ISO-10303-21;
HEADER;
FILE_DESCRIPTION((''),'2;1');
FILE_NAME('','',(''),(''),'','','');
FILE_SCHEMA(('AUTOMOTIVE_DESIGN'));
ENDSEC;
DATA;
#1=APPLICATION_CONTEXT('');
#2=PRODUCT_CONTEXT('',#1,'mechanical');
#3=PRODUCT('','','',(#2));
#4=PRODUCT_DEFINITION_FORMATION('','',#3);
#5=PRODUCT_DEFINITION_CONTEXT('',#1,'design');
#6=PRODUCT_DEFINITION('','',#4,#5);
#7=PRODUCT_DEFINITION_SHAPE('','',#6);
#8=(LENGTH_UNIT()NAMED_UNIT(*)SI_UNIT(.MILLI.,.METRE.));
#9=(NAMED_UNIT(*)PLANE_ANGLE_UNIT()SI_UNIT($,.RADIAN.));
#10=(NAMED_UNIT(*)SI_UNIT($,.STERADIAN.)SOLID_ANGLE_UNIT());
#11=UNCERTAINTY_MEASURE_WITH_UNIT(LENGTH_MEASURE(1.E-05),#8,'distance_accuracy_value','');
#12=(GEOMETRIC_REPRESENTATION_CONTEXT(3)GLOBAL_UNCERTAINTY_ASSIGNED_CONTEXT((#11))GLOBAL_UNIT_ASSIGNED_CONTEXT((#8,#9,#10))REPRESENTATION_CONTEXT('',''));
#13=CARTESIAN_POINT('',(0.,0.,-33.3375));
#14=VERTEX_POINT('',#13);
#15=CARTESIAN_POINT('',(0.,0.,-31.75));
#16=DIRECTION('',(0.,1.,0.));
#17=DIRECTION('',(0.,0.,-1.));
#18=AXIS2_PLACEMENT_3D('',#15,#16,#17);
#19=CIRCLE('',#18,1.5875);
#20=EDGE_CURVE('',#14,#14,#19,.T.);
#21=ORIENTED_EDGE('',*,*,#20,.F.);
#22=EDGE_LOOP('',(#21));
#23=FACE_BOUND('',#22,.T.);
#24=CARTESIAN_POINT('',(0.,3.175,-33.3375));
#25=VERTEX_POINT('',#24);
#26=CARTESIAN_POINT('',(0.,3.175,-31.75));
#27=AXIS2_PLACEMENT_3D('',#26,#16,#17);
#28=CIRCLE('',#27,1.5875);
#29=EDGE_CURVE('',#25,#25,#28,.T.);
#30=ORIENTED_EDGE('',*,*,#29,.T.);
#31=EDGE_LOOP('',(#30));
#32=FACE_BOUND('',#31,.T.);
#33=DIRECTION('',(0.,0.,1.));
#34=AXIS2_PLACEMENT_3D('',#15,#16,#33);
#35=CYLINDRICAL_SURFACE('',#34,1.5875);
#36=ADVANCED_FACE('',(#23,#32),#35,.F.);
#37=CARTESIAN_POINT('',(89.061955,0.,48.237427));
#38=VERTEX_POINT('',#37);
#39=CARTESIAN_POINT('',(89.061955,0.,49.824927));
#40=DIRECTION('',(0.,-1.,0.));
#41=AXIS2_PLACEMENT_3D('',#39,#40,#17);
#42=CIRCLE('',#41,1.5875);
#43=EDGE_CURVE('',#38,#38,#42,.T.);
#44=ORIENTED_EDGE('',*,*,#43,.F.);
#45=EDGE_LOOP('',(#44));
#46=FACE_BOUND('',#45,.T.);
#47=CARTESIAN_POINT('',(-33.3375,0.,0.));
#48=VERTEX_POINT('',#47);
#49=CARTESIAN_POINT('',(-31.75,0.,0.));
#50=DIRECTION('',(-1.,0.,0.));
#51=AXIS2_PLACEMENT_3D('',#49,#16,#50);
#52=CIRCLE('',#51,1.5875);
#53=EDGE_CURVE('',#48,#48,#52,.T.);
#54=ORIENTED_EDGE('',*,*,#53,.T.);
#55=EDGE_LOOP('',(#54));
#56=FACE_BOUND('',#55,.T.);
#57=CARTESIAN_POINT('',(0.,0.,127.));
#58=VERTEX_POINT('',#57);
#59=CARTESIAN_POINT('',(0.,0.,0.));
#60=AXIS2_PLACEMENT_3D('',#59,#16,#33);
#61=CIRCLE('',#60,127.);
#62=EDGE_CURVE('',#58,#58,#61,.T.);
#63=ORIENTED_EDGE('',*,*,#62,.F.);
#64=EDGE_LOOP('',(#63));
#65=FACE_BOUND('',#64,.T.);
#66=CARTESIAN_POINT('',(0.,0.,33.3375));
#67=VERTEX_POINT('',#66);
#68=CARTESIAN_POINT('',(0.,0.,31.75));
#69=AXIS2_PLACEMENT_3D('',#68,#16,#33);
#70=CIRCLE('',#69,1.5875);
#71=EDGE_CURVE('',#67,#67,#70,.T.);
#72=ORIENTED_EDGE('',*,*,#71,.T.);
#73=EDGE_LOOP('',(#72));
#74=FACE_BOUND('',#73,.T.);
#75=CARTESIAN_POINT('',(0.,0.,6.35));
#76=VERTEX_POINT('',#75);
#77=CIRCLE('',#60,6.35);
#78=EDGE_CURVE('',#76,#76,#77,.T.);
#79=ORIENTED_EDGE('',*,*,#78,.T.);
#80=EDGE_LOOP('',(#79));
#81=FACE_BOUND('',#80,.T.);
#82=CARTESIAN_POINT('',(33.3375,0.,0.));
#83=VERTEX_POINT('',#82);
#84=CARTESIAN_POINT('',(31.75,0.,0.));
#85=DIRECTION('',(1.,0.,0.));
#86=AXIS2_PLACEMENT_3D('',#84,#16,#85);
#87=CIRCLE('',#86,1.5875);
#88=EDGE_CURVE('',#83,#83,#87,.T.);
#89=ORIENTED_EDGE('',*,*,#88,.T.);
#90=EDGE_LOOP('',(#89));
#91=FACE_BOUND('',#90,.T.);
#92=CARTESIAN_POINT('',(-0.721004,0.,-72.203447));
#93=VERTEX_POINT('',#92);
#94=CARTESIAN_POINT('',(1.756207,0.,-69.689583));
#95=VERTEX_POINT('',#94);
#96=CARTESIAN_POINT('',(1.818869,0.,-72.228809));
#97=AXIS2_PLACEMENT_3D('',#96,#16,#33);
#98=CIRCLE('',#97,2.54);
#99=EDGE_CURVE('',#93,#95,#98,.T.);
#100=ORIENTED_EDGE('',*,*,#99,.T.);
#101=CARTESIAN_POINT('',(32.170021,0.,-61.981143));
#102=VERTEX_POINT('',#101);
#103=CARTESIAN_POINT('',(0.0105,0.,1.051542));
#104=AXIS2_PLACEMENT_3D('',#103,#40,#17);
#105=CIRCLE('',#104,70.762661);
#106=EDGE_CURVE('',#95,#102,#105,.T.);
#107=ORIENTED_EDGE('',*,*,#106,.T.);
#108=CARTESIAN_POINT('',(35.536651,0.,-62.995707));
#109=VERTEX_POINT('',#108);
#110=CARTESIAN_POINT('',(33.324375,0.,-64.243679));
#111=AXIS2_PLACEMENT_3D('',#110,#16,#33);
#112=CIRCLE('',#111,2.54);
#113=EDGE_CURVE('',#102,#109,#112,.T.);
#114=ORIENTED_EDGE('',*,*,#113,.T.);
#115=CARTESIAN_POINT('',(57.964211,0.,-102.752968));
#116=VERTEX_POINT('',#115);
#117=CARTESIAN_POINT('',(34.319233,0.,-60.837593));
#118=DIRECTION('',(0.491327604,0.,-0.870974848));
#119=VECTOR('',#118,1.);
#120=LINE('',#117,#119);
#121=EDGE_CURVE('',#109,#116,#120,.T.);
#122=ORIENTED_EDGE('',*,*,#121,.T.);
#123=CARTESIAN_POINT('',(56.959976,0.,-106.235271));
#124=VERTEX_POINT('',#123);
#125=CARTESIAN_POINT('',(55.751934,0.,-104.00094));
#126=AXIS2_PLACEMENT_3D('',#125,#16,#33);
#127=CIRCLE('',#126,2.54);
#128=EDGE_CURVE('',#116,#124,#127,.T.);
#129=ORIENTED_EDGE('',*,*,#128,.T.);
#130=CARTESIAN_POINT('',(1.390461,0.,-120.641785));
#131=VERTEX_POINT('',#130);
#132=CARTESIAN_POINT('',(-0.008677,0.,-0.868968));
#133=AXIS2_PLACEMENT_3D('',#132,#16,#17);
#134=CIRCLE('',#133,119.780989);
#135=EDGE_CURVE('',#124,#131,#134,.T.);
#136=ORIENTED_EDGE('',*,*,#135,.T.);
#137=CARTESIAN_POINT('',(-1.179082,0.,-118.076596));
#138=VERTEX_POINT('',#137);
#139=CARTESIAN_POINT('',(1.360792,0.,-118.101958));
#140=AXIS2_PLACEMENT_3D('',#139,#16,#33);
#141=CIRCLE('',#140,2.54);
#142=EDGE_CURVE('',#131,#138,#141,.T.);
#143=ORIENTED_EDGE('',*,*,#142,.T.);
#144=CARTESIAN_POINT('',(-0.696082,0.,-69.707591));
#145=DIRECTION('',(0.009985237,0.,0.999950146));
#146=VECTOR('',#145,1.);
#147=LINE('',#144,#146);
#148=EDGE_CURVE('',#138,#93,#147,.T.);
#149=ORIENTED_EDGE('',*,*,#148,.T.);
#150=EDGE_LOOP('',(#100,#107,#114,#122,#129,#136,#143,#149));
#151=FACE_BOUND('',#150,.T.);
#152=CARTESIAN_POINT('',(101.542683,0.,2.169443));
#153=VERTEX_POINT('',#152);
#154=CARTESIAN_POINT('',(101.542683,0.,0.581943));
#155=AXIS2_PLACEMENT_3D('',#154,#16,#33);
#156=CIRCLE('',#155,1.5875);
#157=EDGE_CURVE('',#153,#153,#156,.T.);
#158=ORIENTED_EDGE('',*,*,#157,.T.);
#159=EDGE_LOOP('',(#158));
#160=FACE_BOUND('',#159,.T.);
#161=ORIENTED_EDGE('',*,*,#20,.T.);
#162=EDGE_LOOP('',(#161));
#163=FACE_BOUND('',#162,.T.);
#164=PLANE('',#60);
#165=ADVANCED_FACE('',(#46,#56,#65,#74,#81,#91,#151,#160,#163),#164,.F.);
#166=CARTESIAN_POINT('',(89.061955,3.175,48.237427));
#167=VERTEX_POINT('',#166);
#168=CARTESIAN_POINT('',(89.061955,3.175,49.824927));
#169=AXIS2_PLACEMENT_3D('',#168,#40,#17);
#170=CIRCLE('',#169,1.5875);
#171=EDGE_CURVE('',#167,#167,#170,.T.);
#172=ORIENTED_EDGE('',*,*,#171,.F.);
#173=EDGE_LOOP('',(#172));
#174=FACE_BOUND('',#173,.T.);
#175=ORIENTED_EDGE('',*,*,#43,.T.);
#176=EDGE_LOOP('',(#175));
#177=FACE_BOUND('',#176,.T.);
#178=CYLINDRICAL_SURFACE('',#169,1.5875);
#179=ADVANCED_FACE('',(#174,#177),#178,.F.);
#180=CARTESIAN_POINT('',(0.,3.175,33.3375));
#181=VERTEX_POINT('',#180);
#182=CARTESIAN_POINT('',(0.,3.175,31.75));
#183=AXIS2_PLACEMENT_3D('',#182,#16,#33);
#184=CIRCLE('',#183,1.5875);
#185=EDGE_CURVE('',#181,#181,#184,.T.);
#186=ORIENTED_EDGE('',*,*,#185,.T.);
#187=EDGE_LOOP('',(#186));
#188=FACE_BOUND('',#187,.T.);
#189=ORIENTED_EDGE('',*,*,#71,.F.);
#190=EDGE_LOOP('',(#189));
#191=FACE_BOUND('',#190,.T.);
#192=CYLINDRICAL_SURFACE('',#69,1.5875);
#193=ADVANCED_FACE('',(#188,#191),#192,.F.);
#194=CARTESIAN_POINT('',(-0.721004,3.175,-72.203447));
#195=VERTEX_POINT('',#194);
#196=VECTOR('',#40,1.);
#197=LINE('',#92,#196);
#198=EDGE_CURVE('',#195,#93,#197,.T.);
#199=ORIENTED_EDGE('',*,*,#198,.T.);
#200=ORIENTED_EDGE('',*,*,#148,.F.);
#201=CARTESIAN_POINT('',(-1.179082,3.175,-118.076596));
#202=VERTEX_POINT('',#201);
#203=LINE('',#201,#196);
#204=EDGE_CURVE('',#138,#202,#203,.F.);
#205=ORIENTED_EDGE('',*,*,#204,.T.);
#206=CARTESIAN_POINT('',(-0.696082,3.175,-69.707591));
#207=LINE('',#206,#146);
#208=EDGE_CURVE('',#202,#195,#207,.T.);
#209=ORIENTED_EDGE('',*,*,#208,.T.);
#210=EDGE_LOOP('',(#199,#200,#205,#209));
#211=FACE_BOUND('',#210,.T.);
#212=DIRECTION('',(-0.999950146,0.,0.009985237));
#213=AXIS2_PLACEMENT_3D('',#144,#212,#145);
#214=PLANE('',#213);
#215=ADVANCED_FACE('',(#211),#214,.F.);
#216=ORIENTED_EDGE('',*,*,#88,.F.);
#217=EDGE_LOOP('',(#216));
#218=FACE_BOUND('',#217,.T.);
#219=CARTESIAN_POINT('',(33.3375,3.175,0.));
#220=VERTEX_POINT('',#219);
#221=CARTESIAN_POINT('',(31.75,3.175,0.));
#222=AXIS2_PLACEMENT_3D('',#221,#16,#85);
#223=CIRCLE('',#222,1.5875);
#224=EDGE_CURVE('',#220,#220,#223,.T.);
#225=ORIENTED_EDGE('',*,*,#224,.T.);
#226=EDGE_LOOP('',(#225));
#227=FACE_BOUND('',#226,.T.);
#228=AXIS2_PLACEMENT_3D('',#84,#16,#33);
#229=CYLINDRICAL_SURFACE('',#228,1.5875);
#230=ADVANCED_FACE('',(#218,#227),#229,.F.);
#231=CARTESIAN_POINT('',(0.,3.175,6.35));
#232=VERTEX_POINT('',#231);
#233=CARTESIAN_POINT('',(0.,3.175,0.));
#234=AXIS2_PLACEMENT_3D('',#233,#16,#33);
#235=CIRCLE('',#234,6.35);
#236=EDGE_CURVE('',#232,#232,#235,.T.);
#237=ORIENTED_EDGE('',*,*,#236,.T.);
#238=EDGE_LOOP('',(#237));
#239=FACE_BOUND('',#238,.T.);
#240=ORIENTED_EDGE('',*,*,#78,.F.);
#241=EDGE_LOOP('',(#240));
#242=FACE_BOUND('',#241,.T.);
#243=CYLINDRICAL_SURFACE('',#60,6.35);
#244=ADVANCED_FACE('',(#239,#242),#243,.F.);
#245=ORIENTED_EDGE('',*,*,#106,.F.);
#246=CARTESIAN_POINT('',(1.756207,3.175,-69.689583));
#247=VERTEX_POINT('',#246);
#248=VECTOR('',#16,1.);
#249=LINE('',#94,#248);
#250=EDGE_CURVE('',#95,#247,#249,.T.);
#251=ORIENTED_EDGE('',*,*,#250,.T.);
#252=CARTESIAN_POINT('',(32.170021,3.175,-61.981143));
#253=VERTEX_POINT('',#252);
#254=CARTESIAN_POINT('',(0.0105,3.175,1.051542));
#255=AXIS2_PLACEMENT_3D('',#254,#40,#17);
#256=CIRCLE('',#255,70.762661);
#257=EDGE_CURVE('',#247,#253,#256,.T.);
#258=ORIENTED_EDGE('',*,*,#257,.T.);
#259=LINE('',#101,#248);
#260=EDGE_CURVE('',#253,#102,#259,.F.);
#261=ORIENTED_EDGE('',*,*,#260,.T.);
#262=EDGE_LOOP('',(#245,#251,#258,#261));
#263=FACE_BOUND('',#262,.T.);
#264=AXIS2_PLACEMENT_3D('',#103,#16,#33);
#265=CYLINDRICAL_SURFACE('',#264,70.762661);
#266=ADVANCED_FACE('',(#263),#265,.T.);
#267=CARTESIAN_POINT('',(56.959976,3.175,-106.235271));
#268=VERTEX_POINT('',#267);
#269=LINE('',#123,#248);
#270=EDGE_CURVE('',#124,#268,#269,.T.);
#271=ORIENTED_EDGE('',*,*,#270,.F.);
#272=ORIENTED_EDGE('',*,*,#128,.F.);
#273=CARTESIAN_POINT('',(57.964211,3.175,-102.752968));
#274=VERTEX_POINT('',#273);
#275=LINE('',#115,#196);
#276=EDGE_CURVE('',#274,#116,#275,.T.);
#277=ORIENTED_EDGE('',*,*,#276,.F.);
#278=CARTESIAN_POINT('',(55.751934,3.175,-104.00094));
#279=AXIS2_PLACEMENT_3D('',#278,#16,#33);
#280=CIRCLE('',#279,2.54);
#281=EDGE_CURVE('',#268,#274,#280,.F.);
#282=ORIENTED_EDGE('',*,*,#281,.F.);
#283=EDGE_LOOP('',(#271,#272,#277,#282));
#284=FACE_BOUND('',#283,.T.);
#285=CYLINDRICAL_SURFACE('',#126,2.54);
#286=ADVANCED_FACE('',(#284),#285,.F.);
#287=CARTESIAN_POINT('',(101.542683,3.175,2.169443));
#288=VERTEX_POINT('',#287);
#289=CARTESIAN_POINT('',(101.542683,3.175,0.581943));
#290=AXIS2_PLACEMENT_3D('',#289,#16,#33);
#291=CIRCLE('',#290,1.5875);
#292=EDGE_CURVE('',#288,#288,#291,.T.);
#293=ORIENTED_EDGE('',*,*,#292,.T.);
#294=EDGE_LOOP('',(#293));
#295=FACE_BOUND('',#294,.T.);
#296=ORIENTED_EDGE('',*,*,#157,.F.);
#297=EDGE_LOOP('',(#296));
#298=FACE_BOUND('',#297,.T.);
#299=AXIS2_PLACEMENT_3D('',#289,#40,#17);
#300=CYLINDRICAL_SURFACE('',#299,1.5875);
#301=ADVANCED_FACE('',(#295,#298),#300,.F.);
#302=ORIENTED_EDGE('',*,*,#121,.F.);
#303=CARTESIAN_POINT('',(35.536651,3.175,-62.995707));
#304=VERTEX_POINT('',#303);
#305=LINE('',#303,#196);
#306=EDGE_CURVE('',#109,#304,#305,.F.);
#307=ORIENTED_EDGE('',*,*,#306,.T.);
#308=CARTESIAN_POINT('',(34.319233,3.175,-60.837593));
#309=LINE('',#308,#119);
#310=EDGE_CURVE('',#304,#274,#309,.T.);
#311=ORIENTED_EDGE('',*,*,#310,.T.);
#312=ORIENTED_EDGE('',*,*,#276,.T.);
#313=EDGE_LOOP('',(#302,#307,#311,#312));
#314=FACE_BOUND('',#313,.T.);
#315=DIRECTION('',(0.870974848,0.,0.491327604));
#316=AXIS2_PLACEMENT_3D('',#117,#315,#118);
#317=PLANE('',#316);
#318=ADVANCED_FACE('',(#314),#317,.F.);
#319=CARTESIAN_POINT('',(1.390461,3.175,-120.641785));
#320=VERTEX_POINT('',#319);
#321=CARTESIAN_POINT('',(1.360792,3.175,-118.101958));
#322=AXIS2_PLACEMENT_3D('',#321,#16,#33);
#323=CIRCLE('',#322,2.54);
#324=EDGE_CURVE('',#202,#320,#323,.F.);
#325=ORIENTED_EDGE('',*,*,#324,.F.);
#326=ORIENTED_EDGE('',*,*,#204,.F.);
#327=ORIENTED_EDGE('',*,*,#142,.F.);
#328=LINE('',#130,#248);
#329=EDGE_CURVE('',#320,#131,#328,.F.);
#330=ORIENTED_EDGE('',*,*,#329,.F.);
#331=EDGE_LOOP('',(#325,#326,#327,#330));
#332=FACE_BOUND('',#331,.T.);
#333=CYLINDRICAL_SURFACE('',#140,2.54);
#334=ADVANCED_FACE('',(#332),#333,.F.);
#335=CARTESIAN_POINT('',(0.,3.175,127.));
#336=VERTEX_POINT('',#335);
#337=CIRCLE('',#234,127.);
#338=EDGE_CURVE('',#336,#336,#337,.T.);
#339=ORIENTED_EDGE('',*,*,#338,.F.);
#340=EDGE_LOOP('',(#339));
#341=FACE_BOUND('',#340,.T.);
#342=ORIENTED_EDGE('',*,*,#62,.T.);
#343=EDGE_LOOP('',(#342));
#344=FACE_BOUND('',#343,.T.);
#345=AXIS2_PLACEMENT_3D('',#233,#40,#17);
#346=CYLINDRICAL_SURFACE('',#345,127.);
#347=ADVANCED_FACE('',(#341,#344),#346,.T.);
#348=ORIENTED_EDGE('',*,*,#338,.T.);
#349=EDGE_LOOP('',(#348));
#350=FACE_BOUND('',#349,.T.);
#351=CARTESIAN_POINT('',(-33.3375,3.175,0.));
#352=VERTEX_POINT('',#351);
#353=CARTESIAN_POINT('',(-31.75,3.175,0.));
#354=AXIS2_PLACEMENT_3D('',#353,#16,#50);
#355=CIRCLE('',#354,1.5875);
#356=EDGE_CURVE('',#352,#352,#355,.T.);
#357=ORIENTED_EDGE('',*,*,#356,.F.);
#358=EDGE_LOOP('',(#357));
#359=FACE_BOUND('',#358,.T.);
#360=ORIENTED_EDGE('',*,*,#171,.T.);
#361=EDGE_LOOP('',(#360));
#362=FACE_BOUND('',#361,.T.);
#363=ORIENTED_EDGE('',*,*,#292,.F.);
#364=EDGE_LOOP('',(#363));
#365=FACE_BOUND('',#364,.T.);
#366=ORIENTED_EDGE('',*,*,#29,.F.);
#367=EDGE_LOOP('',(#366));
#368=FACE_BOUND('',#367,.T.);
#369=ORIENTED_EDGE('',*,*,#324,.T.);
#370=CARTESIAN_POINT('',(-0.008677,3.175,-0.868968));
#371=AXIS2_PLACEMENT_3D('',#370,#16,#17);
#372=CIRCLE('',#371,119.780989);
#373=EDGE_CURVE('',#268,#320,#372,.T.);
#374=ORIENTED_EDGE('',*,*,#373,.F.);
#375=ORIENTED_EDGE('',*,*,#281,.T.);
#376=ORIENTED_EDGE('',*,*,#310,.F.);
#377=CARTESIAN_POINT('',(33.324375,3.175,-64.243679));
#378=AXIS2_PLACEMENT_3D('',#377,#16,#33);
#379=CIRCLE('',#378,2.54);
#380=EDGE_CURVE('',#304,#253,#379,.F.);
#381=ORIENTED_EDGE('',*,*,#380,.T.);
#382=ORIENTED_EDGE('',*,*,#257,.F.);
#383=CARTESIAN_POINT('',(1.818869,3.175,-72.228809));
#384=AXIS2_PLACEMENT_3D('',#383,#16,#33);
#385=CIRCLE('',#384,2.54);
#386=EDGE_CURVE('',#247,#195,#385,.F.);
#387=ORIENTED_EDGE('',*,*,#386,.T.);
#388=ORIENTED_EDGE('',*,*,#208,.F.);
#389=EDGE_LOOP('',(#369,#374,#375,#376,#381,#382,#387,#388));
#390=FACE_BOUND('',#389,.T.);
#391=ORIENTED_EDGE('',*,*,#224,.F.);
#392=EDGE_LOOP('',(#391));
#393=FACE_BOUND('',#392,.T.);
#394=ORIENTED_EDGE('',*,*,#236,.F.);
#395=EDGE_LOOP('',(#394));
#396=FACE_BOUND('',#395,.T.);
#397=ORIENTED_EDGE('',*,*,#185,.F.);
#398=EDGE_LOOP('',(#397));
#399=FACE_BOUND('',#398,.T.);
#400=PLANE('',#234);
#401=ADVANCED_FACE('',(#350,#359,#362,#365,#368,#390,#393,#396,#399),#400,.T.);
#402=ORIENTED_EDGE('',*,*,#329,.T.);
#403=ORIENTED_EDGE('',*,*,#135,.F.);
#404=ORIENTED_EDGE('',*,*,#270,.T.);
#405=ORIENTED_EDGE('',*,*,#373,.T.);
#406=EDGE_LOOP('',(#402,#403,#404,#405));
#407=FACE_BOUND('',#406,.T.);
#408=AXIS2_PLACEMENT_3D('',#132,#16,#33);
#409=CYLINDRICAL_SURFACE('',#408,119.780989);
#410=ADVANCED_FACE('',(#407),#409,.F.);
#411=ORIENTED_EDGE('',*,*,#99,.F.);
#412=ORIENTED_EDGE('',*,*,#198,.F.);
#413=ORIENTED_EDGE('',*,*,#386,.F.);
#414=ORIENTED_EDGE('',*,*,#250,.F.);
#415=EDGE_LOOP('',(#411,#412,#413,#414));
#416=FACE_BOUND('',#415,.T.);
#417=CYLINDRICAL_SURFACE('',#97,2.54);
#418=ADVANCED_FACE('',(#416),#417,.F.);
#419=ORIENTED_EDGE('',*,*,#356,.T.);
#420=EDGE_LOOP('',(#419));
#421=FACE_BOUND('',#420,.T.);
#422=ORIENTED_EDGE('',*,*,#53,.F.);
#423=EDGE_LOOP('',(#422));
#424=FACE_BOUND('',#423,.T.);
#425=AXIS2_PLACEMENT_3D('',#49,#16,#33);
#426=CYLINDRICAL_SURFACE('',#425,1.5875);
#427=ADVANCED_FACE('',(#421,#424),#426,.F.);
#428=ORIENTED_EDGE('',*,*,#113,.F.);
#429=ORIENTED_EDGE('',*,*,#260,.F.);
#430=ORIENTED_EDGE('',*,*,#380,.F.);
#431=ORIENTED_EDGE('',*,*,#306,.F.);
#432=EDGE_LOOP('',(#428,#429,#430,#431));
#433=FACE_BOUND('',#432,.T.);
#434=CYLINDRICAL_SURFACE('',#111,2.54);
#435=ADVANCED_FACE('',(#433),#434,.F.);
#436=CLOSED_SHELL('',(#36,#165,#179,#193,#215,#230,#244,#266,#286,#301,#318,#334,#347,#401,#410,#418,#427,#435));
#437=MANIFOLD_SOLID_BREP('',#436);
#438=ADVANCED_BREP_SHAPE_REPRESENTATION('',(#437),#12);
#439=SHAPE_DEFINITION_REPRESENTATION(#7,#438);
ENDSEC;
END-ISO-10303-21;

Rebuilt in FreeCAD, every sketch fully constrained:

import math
import FreeCAD as App
import Part
import Sketcher

V = App.Vector
Q = App.Units.Quantity


def edges_at(feature, points):
    """Names of the edges that pass closest to the given points."""
    edges = feature.Shape.Edges
    near = lambda p: min(range(len(edges)), key=lambda i: edges[i].distToShape(Part.Vertex(*p))[0])
    return sorted({f"Edge{near(p) + 1}" for p in points})

doc = App.newDocument("Part")
params = doc.addObject("Spreadsheet::Sheet", "Params")
for row, (alias, value) in enumerate([
    ("sketch1_diameter", "10 in"),
    ("pad1_length", "0.125 in"),
    ("sketch2_diameter", "0.5 in"),
    ("sketch4_diameter", "0.125 in"),
    ("fillet_radius", "0.1 in"),
    ("sketch5_diameter", "0.125 in"),
], start=1):
    params.set(f"A{row}", alias)
    params.set(f"B{row}", "=" + value)
    params.setAlias(f"B{row}", alias)

body = doc.addObject("PartDesign::Body", "Body")

# Sketch on XZ plane
sketch1 = body.newObject("Sketcher::SketchObject", "Sketch")
sketch1.AttachmentSupport = (doc.getObject("XZ_Plane"), [""])
sketch1.MapMode = "FlatFace"
sketch1.addGeometry(Part.Circle(V(0, 0, 0), V(0, 0, 1), 127), False)
sketch1.addConstraint(Sketcher.Constraint("Coincident", 0, 3, -1, 1))
sketch1.addConstraint(Sketcher.Constraint("Diameter", 0, Q("10 in")))
sketch1.setExpression("Constraints[1]", "Params.sketch1_diameter")
pad1 = body.newObject("PartDesign::Pad", "Pad")
pad1.Profile = sketch1
pad1.setExpression("Length", "Params.pad1_length")
pad1.Reversed = True

# Sketch on XZ plane
sketch2 = body.newObject("Sketcher::SketchObject", "Sketch001")
sketch2.AttachmentSupport = (doc.getObject("XZ_Plane"), [""])
sketch2.MapMode = "FlatFace"
sketch2.AttachmentOffset = App.Placement(V(0, 0, -0.125 * 25.4), App.Rotation())
sketch2.addGeometry(Part.Circle(V(0, 0, 0), V(0, 0, 1), 6), False)
sketch2.addConstraint(Sketcher.Constraint("Coincident", 0, 3, -1, 1))
sketch2.addConstraint(Sketcher.Constraint("Diameter", 0, Q("0.5 in")))
sketch2.setExpression("Constraints[1]", "Params.sketch2_diameter")
pocket1 = body.newObject("PartDesign::Pocket", "Pocket")
pocket1.Profile = sketch2
pocket1.Type = "ThroughAll"
pocket1.Reversed = True

# Sketch on XZ plane
sketch3 = body.newObject("Sketcher::SketchObject", "Sketch002")
sketch3.AttachmentSupport = (doc.getObject("XZ_Plane"), [""])
sketch3.MapMode = "FlatFace"
sketch3.AttachmentOffset = App.Placement(V(0, 0, -0.125 * 25.4), App.Rotation())
sketch3.addGeometry(Part.LineSegment(V(-1, -121, 0), V(-1, -70, 0)), False)
sketch3.addGeometry(Part.ArcOfCircle(Part.Circle(V(0, 1, 0), V(0, 0, 1), 71), math.radians(-91), math.radians(-61)), False)
sketch3.addGeometry(Part.LineSegment(V(34, -61, 0), V(59, -105, 0)), False)
sketch3.addGeometry(Part.ArcOfCircle(Part.Circle(V(0, -1, 0), V(0, 0, 1), 120), math.radians(-91), math.radians(-60)), False)
sketch3.addConstraint(Sketcher.Constraint("Coincident", 0, 2, 1, 1))
sketch3.addConstraint(Sketcher.Constraint("Coincident", 1, 2, 2, 1))
sketch3.addConstraint(Sketcher.Constraint("Coincident", 2, 2, 3, 2))
sketch3.addConstraint(Sketcher.Constraint("Coincident", 3, 1, 0, 1))
sketch3.addConstraint(Sketcher.Constraint("Radius", 1, Q("70.762661 mm")))
sketch3.addConstraint(Sketcher.Constraint("Radius", 3, Q("119.780989 mm")))
sketch3.addConstraint(Sketcher.Constraint("DistanceY", 2, 2, 3, 3, Q("4.0988999 in")))
sketch3.addConstraint(Sketcher.Constraint("DistanceX", -1, 1, 1, 3, Q("0.0105 mm")))
sketch3.addConstraint(Sketcher.Constraint("DistanceY", 0, 2, 1, 2, Q("8.869998 mm")))
sketch3.addConstraint(Sketcher.Constraint("DistanceY", -1, 1, 1, 3, Q("1.051542 mm")))
sketch3.addConstraint(Sketcher.Constraint("DistanceX", 0, 2, -1, 1, Q("0.696082 mm")))
sketch3.addConstraint(Sketcher.Constraint("DistanceX", 3, 1, -1, 1, Q("1.204719 mm")))
sketch3.addConstraint(Sketcher.Constraint("DistanceY", 3, 3, 1, 3, Q("1.92051 mm")))
sketch3.addConstraint(Sketcher.Constraint("DistanceX", 3, 3, 1, 2, Q("34.32791 mm")))
pocket2 = body.newObject("PartDesign::Pocket", "Pocket001")
pocket2.Profile = sketch3
pocket2.Type = "ThroughAll"
pocket2.Reversed = True

# Sketch on XZ plane
sketch4 = body.newObject("Sketcher::SketchObject", "Sketch003")
sketch4.AttachmentSupport = (doc.getObject("XZ_Plane"), [""])
sketch4.MapMode = "FlatFace"
sketch4.AttachmentOffset = App.Placement(V(0, 0, -0.125 * 25.4), App.Rotation())
sketch4.addGeometry(Part.Circle(V(0, 31.8, 0), V(0, 0, 1), 1.6), False)
sketch4.addConstraint(Sketcher.Constraint("PointOnObject", 0, 3, -2))
sketch4.addConstraint(Sketcher.Constraint("Diameter", 0, Q("0.125 in")))
sketch4.addConstraint(Sketcher.Constraint("DistanceY", -1, 1, 0, 3, Q("1.25 in")))
sketch4.setExpression("Constraints[1]", "Params.sketch4_diameter")
pocket3 = body.newObject("PartDesign::Pocket", "Pocket002")
pocket3.Profile = sketch4
pocket3.Type = "ThroughAll"
pocket3.Reversed = True
doc.recompute()

polarpattern = body.newObject("PartDesign::PolarPattern", "PolarPattern")
polarpattern.Originals = [pocket3]
polarpattern.Axis = (doc.getObject("Y_Axis"), [""])
polarpattern.Angle = 360
polarpattern.Occurrences = 4
body.Tip = polarpattern
doc.recompute()

fillet = body.newObject("PartDesign::Fillet", "Fillet")
fillet.Base = (polarpattern, edges_at(polarpattern, [
    (34.319, 1.587, -60.838),
    (-0.696, 1.587, -69.708),
    (-1.205, 1.587, -120.644),
    (59.221, 1.587, -104.981),
]))
fillet.setExpression("Radius", "Params.fillet_radius")

# Sketch on XZ plane
sketch5 = body.newObject("Sketcher::SketchObject", "Sketch004")
sketch5.AttachmentSupport = (doc.getObject("XZ_Plane"), [""])
sketch5.MapMode = "FlatFace"
sketch5.addGeometry(Part.Circle(V(89.1, 49.8, 0), V(0, 0, 1), 1.6), False)
sketch5.addGeometry(Part.Circle(V(101.5, 0.6, 0), V(0, 0, 1), 1.6), False)
sketch5.addConstraint(Sketcher.Constraint("Equal", 0, 1))
sketch5.addConstraint(Sketcher.Constraint("Diameter", 0, Q("0.125 in")))
sketch5.addConstraint(Sketcher.Constraint("DistanceY", 1, 3, 0, 3, Q("1.9387001 in")))
sketch5.addConstraint(Sketcher.Constraint("DistanceX", 0, 3, 1, 3, Q("12.480728 mm")))
sketch5.addConstraint(Sketcher.Constraint("DistanceX", -1, 1, 0, 3, Q("89.061955 mm")))
sketch5.addConstraint(Sketcher.Constraint("DistanceY", -1, 1, 0, 3, Q("49.824927 mm")))
sketch5.setExpression("Constraints[1]", "Params.sketch5_diameter")
pocket4 = body.newObject("PartDesign::Pocket", "Pocket003")
pocket4.Profile = sketch5
pocket4.Type = "ThroughAll"

doc.recompute()
